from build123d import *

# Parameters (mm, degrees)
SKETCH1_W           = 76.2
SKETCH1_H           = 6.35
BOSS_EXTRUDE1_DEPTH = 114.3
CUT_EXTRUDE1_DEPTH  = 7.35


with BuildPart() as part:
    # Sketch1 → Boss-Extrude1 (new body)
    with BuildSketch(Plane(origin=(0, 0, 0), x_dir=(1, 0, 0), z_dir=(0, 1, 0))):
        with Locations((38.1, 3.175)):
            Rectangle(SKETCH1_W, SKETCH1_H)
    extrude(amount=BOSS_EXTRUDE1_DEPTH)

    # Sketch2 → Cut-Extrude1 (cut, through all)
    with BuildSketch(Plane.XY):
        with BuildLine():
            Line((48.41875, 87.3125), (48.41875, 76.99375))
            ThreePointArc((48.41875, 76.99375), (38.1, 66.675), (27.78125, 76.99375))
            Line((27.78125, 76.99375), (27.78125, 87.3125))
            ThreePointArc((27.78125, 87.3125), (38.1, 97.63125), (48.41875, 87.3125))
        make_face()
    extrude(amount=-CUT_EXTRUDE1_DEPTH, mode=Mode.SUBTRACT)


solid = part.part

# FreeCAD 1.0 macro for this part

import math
import FreeCAD as App
import Part
import Sketcher
Q = App.Units.Quantity

doc = App.newDocument("Part")
body = doc.addObject("PartDesign::Body", "Body")

# Sketch on XZ plane
sketch1 = doc.addObject("Sketcher::SketchObject", "Sketch")
body.addObject(sketch1)
sketch1.AttachmentSupport = (doc.XZ_Plane, [""])
sketch1.MapMode = "FlatFace"
sketch1.addGeometry([
    Part.LineSegment(App.Vector(0, -6.35, 0), App.Vector(0, 0, 0)),
    Part.LineSegment(App.Vector(0, 0, 0), App.Vector(76.2, 0, 0)),
    Part.LineSegment(App.Vector(76.2, 0, 0), App.Vector(76.2, -6.35, 0)),
    Part.LineSegment(App.Vector(76.2, -6.35, 0), App.Vector(0, -6.35, 0)),
], False)
sketch1.addConstraint([
    Sketcher.Constraint("Coincident", 0, 2, 1, 1),
    Sketcher.Constraint("Coincident", 1, 2, 2, 1),
    Sketcher.Constraint("Coincident", 2, 2, 3, 1),
    Sketcher.Constraint("Coincident", 3, 2, 0, 1),
    Sketcher.Constraint("Vertical", 0),
    Sketcher.Constraint("Horizontal", 1),
    Sketcher.Constraint("Vertical", 2),
    Sketcher.Constraint("Horizontal", 3),
    Sketcher.Constraint("Coincident", 0, 2, -1, 1),
    Sketcher.Constraint("DistanceX", 1, 1, 1, 2, Q("3 in")),
    Sketcher.Constraint("DistanceY", 0, 1, 0, 2, Q("0.25 in")),
])
pad1 = doc.addObject("PartDesign::Pad", "Pad")
body.addObject(pad1)
pad1.Profile = sketch1
pad1.Length = Q("4.5 in")
pad1.Reversed = True

# Sketch on XY plane
sketch2 = doc.addObject("Sketcher::SketchObject", "Sketch001")
body.addObject(sketch2)
sketch2.AttachmentSupport = (doc.XY_Plane, [""])
sketch2.MapMode = "FlatFace"
sketch2.addGeometry([
    Part.LineSegment(App.Vector(48.41875, 76.99375, 0), App.Vector(48.41875, 87.3125, 0)),
    Part.ArcOfCircle(Part.Circle(App.Vector(38.1, 87.3125, 0), App.Vector(0, 0, 1), 10.31875), math.radians(0), math.radians(180)),
    Part.LineSegment(App.Vector(27.78125, 87.3125, 0), App.Vector(27.78125, 76.99375, 0)),
    Part.ArcOfCircle(Part.Circle(App.Vector(38.1, 76.99375, 0), App.Vector(0, 0, 1), 10.31875), math.radians(180), math.radians(360)),
], False)
sketch2.addConstraint([
    Sketcher.Constraint("Tangent", 0, 2, 1, 1),
    Sketcher.Constraint("Tangent", 1, 2, 2, 1),
    Sketcher.Constraint("Tangent", 2, 2, 3, 1),
    Sketcher.Constraint("Tangent", 3, 2, 0, 1),
    Sketcher.Constraint("Vertical", 0),
    Sketcher.Constraint("Vertical", 2),
    Sketcher.Constraint("Radius", 1, Q("0.40625 in")),
    Sketcher.Constraint("DistanceX", -1, 1, 1, 3, Q("1.5 in")),
    Sketcher.Constraint("DistanceY", 0, 1, 0, 2, Q("0.40625 in")),
    Sketcher.Constraint("DistanceY", -1, 1, 1, 3, Q("3.4375 in")),
])
pocket1 = doc.addObject("PartDesign::Pocket", "Pocket")
body.addObject(pocket1)
pocket1.Profile = sketch2
pocket1.Type = "ThroughAll"

doc.recompute()
